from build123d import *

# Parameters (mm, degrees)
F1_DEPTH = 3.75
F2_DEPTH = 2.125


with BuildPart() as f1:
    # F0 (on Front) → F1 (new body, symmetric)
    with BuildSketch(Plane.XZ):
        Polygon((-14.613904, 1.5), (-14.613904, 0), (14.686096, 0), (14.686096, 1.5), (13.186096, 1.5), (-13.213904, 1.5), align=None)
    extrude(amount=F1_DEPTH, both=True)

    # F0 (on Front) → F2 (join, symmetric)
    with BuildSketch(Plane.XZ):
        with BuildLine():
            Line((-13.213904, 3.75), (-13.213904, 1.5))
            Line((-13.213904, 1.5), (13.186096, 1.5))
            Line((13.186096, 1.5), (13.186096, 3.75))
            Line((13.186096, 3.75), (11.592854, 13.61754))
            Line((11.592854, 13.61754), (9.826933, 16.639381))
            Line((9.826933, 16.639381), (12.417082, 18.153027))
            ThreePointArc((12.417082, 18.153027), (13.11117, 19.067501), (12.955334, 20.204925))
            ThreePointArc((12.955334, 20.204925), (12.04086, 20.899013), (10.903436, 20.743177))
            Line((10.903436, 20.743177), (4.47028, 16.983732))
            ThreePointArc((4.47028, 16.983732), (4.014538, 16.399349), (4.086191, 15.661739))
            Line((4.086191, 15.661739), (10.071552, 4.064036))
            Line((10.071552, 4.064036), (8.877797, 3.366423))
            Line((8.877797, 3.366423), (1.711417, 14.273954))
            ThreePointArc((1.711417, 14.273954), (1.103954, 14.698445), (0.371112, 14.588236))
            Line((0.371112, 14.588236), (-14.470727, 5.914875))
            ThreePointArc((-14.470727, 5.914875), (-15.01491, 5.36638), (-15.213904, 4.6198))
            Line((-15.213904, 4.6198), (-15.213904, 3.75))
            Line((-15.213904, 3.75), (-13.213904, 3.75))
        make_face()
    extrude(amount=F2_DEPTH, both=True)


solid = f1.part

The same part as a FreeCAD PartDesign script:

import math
import FreeCAD as App
import Part
import Sketcher
from FreeCAD import Vector


def add_polygon(sketch, points):
    """Adds a closed chain of lines whose ends are joined by coincident constraints."""
    first, n = sketch.GeometryCount, len(points)
    for a, b in zip(points, points[1:] + points[:1]):
        sketch.addGeometry(Part.LineSegment(App.Vector(*a, 0), App.Vector(*b, 0)), False)
    for i in range(n):
        sketch.addConstraint(Sketcher.Constraint("Coincident", first + i, 2, first + (i + 1) % n, 1))

doc = App.newDocument("Part")
body = doc.addObject("PartDesign::Body", "Body")

sketch1 = doc.addObject("Sketcher::SketchObject", "Sketch")
body.addObject(sketch1)
sketch1.AttachmentSupport = (doc.XZ_Plane, [""])
sketch1.MapMode = "FlatFace"
add_polygon(sketch1, [(-14.6, 1.5), (-14.6, 0), (14.7, 0), (14.7, 1.5)])
sketch1.addConstraint(Sketcher.Constraint("Vertical", 0))
sketch1.addConstraint(Sketcher.Constraint("Horizontal", 1))
sketch1.addConstraint(Sketcher.Constraint("Vertical", 2))
sketch1.addConstraint(Sketcher.Constraint("Horizontal", 3))
sketch1.addConstraint(Sketcher.Constraint("PointOnObject", 0, 2, -1))
sketch1.addConstraint(Sketcher.Constraint("DistanceX", 1, 1, 1, 2, 29.3))
sketch1.addConstraint(Sketcher.Constraint("DistanceY", 0, 2, 0, 1, 1.5))
sketch1.addConstraint(Sketcher.Constraint("DistanceX", 0, 2, -1, 1, 14.613904))
pad1 = doc.addObject("PartDesign::Pad", "Pad")
body.addObject(pad1)
pad1.Profile = sketch1
pad1.Length = 7.5
pad1.Midplane = True

sketch2 = doc.addObject("Sketcher::SketchObject", "Sketch001")
body.addObject(sketch2)
sketch2.AttachmentSupport = (doc.XZ_Plane, [""])
sketch2.MapMode = "FlatFace"
sketch2.addGeometry(Part.LineSegment(Vector(-13.2, 3.8, 0), Vector(-13.2, 1.5, 0)), False)
sketch2.addGeometry(Part.LineSegment(Vector(-13.2, 1.5, 0), Vector(13.2, 1.5, 0)), False)
sketch2.addGeometry(Part.LineSegment(Vector(13.2, 1.5, 0), Vector(13.2, 3.8, 0)), False)
sketch2.addGeometry(Part.LineSegment(Vector(13.2, 3.8, 0), Vector(11.6, 13.6, 0)), False)
sketch2.addGeometry(Part.LineSegment(Vector(11.6, 13.6, 0), Vector(9.8, 16.6, 0)), False)
sketch2.addGeometry(Part.LineSegment(Vector(9.8, 16.6, 0), Vector(12.4, 18.2, 0)), False)
sketch2.addGeometry(Part.ArcOfCircle(Part.Circle(Vector(11.7, 19.4, 0), Vector(0, 0, 1), 1.5), math.radians(-60), math.radians(30)), False)
sketch2.addGeometry(Part.ArcOfCircle(Part.Circle(Vector(11.7, 19.4, 0), Vector(0, 0, 1), 1.5), math.radians(30), math.radians(120)), False)
sketch2.addGeometry(Part.LineSegment(Vector(10.9, 20.7, 0), Vector(4.5, 17, 0)), False)
sketch2.addGeometry(Part.ArcOfCircle(Part.Circle(Vector(5, 16.1, 0), Vector(0, 0, 1), 1), math.radians(120), math.radians(207)), False)
sketch2.addGeometry(Part.LineSegment(Vector(4.1, 15.7, 0), Vector(10.1, 4.1, 0)), False)
sketch2.addGeometry(Part.LineSegment(Vector(10.1, 4.1, 0), Vector(8.9, 3.4, 0)), False)
sketch2.addGeometry(Part.LineSegment(Vector(8.9, 3.4, 0), Vector(1.7, 14.3, 0)), False)
sketch2.addGeometry(Part.ArcOfCircle(Part.Circle(Vector(0.9, 13.7, 0), Vector(0, 0, 1), 1), math.radians(33), math.radians(120)), False)
sketch2.addGeometry(Part.LineSegment(Vector(0.4, 14.6, 0), Vector(-14.5, 5.9, 0)), False)
sketch2.addGeometry(Part.ArcOfCircle(Part.Circle(Vector(-13.7, 4.6, 0), Vector(0, 0, 1), 1.5), math.radians(120), math.radians(180)), False)
sketch2.addGeometry(Part.LineSegment(Vector(-15.2, 4.6, 0), Vector(-15.2, 3.8, 0)), False)
sketch2.addGeometry(Part.LineSegment(Vector(-15.2, 3.8, 0), Vector(-13.2, 3.8, 0)), False)
sketch2.addConstraint(Sketcher.Constraint("Coincident", 0, 2, 1, 1))
sketch2.addConstraint(Sketcher.Constraint("Coincident", 1, 2, 2, 1))
sketch2.addConstraint(Sketcher.Constraint("Coincident", 2, 2, 3, 1))
sketch2.addConstraint(Sketcher.Constraint("Coincident", 3, 2, 4, 1))
sketch2.addConstraint(Sketcher.Constraint("Coincident", 4, 2, 5, 1))
sketch2.addConstraint(Sketcher.Constraint("Tangent", 5, 2, 6, 1))
sketch2.addConstraint(Sketcher.Constraint("Tangent", 6, 2, 7, 1))
sketch2.addConstraint(Sketcher.Constraint("Tangent", 7, 2, 8, 1))
sketch2.addConstraint(Sketcher.Constraint("Tangent", 8, 2, 9, 1))
sketch2.addConstraint(Sketcher.Constraint("Tangent", 9, 2, 10, 1))
sketch2.addConstraint(Sketcher.Constraint("Coincident", 10, 2, 11, 1))
sketch2.addConstraint(Sketcher.Constraint("Coincident", 11, 2, 12, 1))
sketch2.addConstraint(Sketcher.Constraint("Tangent", 12, 2, 13, 1))
sketch2.addConstraint(Sketcher.Constraint("Tangent", 13, 2, 14, 1))
sketch2.addConstraint(Sketcher.Constraint("Tangent", 14, 2, 15, 1))
sketch2.addConstraint(Sketcher.Constraint("Tangent", 15, 2, 16, 1))
sketch2.addConstraint(Sketcher.Constraint("Coincident", 16, 2, 17, 1))
sketch2.addConstraint(Sketcher.Constraint("Coincident", 17, 2, 0, 1))
sketch2.addConstraint(Sketcher.Constraint("Vertical", 0))
sketch2.addConstraint(Sketcher.Constraint("Horizontal", 1))
sketch2.addConstraint(Sketcher.Constraint("Vertical", 2))
sketch2.addConstraint(Sketcher.Constraint("Vertical", 16))
sketch2.addConstraint(Sketcher.Constraint("Horizontal", 17))
sketch2.addConstraint(Sketcher.Constraint("Equal", 6, 7))
sketch2.addConstraint(Sketcher.Constraint("Equal", 9, 13))
sketch2.addConstraint(Sketcher.Constraint("Perpendicular", 4, 5))
sketch2.addConstraint(Sketcher.Constraint("Parallel", 5, 8))
sketch2.addConstraint(Sketcher.Constraint("Parallel", 8, 11))
sketch2.addConstraint(Sketcher.Constraint("Parallel", 11, 14))
sketch2.addConstraint(Sketcher.Constraint("Horizontal", 2, 2, 16, 2))
sketch2.addConstraint(Sketcher.Constraint("Equal", 10, 12))
sketch2.addConstraint(Sketcher.Constraint("Radius", 9, 1.000001))
sketch2.addConstraint(Sketcher.Constraint("Radius", 6, 1.5))
sketch2.addConstraint(Sketcher.Constraint("DistanceX", 17, 1, 17, 2, 2.0))
sketch2.addConstraint(Sketcher.Constraint("Distance", 5, 2.999999))
sketch2.addConstraint(Sketcher.Constraint("DistanceX", 1, 1, 1, 2, 26.4))
sketch2.addConstraint(Sketcher.Constraint("Distance", 4, 3.5))
sketch2.addConstraint(Sketcher.Constraint("DistanceY", 0, 2, 0, 1, 2.25))
sketch2.addConstraint(Sketcher.Constraint("DistanceY", -1, 1, 0, 2, 1.5))
sketch2.addConstraint(Sketcher.Constraint("DistanceY", 16, 2, 16, 1, 0.8698))
sketch2.addConstraint(Sketcher.Constraint("Radius", 15, 1.500004))
sketch2.addConstraint(Sketcher.Constraint("Distance", 10, 13.051102))
sketch2.addConstraint(Sketcher.Constraint("DistanceY", -1, 1, 7, 3, 19.448101))
sketch2.addConstraint(Sketcher.Constraint("DistanceX", 15, 3, -1, 1, 13.7139))
sketch2.addConstraint(Sketcher.Constraint("DistanceX", 13, 3, 7, 3, 10.784598))
sketch2.addConstraint(Sketcher.Constraint("DistanceX", 4, 2, 6, 2, 3.128401))
sketch2.addConstraint(Sketcher.Constraint("DistanceY", 3, 2, 9, 2, 2.044199))
sketch2.addConstraint(Sketcher.Constraint("DistanceX", 11, 2, 2, 2, 4.308299))
sketch2.addConstraint(Sketcher.Constraint("DistanceX", -1, 1, 6, 3, 11.660258))
sketch2.addConstraint(Sketcher.Constraint("DistanceX", -1, 1, 9, 3, 4.97483))
pad2 = doc.addObject("PartDesign::Pad", "Pad001")
body.addObject(pad2)
pad2.Profile = sketch2
pad2.Length = 4.25
pad2.Midplane = True

doc.recompute()
